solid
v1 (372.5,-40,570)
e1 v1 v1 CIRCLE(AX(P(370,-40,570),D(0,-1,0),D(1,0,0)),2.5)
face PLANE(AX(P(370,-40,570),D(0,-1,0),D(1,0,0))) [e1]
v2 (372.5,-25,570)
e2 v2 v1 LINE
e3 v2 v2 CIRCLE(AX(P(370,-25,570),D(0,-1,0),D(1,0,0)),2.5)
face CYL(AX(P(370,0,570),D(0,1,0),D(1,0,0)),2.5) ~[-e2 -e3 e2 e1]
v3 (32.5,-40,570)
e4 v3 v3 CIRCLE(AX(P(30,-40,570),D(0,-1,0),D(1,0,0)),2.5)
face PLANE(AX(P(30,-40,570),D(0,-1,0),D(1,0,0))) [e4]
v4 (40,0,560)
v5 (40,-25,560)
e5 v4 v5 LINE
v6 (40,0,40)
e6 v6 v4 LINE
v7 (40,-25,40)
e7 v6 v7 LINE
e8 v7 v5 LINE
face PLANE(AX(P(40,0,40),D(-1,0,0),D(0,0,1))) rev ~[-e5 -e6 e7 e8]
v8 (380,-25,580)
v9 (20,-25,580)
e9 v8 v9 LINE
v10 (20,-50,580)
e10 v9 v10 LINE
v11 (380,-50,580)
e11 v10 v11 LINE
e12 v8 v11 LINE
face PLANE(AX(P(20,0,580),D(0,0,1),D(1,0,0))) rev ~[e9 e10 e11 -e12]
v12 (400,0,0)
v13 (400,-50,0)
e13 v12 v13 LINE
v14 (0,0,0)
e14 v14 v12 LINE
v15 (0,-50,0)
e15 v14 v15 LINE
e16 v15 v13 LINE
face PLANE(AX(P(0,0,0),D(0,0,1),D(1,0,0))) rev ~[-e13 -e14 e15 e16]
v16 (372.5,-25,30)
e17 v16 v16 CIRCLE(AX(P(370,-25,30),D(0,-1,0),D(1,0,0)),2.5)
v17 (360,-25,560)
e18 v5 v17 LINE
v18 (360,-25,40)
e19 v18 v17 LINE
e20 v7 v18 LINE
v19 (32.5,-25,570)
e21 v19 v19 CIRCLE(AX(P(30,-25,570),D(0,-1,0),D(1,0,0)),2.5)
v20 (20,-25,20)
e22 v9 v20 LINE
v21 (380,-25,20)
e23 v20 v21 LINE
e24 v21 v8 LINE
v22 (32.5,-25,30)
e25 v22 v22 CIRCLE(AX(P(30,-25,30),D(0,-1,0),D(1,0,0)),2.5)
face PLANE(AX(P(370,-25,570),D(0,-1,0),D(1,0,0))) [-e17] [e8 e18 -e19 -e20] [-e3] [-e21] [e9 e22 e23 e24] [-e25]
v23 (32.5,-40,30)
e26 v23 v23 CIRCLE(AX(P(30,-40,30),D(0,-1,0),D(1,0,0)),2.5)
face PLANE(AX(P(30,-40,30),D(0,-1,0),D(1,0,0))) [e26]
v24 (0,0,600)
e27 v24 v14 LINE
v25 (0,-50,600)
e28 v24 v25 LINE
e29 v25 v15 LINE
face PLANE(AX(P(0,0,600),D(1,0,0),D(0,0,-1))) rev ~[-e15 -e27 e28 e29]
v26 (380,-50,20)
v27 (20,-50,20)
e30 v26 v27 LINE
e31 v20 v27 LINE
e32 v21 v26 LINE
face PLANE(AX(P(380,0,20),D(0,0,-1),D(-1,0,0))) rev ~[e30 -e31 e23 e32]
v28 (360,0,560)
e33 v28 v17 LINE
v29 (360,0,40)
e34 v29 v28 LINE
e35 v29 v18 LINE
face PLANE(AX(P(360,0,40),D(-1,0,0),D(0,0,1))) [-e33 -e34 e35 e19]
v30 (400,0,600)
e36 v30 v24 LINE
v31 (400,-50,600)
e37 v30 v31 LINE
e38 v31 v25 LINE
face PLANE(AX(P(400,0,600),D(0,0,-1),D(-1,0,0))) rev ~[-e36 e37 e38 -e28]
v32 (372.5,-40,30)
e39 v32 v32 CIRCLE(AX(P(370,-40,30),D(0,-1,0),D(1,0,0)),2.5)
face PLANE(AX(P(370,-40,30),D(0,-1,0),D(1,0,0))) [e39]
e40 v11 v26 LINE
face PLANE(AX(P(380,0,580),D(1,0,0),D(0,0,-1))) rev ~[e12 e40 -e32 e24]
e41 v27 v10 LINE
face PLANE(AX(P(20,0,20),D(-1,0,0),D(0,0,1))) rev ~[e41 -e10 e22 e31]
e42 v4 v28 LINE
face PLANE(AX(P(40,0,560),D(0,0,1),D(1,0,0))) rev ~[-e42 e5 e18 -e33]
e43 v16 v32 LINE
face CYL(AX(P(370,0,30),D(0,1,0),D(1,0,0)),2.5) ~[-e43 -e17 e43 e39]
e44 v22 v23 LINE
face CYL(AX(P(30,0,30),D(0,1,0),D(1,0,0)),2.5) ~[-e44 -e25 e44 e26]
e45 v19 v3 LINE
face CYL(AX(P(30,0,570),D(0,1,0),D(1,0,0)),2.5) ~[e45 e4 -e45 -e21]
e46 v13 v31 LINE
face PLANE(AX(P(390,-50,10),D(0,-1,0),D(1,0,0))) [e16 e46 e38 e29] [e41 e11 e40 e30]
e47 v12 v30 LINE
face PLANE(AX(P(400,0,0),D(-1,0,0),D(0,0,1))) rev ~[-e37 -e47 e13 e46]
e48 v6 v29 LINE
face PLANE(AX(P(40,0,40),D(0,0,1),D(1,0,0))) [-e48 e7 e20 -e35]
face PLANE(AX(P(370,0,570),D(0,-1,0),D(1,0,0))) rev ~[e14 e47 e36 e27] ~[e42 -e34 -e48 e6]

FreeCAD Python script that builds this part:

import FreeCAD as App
import Part
import Sketcher
from FreeCAD import Vector
Q = App.Units.Quantity

doc = App.newDocument("Part")
body = doc.addObject("PartDesign::Body", "Body")

sketch1 = doc.addObject("Sketcher::SketchObject", "Sketch")
body.addObject(sketch1)
sketch1.AttachmentSupport = (doc.XZ_Plane, [""])
sketch1.MapMode = "FlatFace"
sketch1.addGeometry(Part.LineSegment(Vector(400, 0, 0), Vector(400, 600, 0)), False)
sketch1.addGeometry(Part.LineSegment(Vector(400, 600, 0), Vector(0, 600, 0)), False)
sketch1.addGeometry(Part.LineSegment(Vector(0, 600, 0), Vector(0, 0, 0)), False)
sketch1.addGeometry(Part.LineSegment(Vector(0, 0, 0), Vector(400, 0, 0)), False)
sketch1.addGeometry(Part.LineSegment(Vector(20, 580, 0), Vector(380, 580, 0)), False)
sketch1.addGeometry(Part.LineSegment(Vector(380, 580, 0), Vector(380, 20, 0)), False)
sketch1.addGeometry(Part.LineSegment(Vector(380, 20, 0), Vector(20, 20, 0)), False)
sketch1.addGeometry(Part.LineSegment(Vector(20, 20, 0), Vector(20, 580, 0)), False)
sketch1.addConstraint(Sketcher.Constraint("Coincident", 0, 2, 1, 1))
sketch1.addConstraint(Sketcher.Constraint("Coincident", 1, 2, 2, 1))
sketch1.addConstraint(Sketcher.Constraint("Coincident", 2, 2, 3, 1))
sketch1.addConstraint(Sketcher.Constraint("Coincident", 3, 2, 0, 1))
sketch1.addConstraint(Sketcher.Constraint("Coincident", 4, 2, 5, 1))
sketch1.addConstraint(Sketcher.Constraint("Coincident", 5, 2, 6, 1))
sketch1.addConstraint(Sketcher.Constraint("Coincident", 6, 2, 7, 1))
sketch1.addConstraint(Sketcher.Constraint("Coincident", 7, 2, 4, 1))
sketch1.addConstraint(Sketcher.Constraint("Vertical", 0))
sketch1.addConstraint(Sketcher.Constraint("Horizontal", 1))
sketch1.addConstraint(Sketcher.Constraint("Vertical", 2))
sketch1.addConstraint(Sketcher.Constraint("Horizontal", 3))
sketch1.addConstraint(Sketcher.Constraint("Horizontal", 4))
sketch1.addConstraint(Sketcher.Constraint("Vertical", 5))
sketch1.addConstraint(Sketcher.Constraint("Horizontal", 6))
sketch1.addConstraint(Sketcher.Constraint("Vertical", 7))
sketch1.addConstraint(Sketcher.Constraint("Coincident", 2, 2, -1, 1))
sketch1.addConstraint(Sketcher.Constraint("DistanceX", 1, 2, 1, 1, Q("400 mm")))
sketch1.addConstraint(Sketcher.Constraint("DistanceX", 4, 1, 4, 2, Q("360 mm")))
sketch1.addConstraint(Sketcher.Constraint("DistanceY", 0, 1, 0, 2, Q("600 mm")))
sketch1.addConstraint(Sketcher.Constraint("DistanceY", 5, 2, 5, 1, Q("560 mm")))
sketch1.addConstraint(Sketcher.Constraint("DistanceX", -1, 1, 4, 2, Q("380 mm")))
sketch1.addConstraint(Sketcher.Constraint("DistanceY", -1, 1, 4, 2, Q("580 mm")))
pad1 = doc.addObject("PartDesign::Pad", "Pad")
body.addObject(pad1)
pad1.Profile = sketch1
pad1.Length = 50

sketch2 = doc.addObject("Sketcher::SketchObject", "Sketch001")
body.addObject(sketch2)
sketch2.AttachmentSupport = (doc.XZ_Plane, [""])
sketch2.MapMode = "FlatFace"
sketch2.addGeometry(Part.LineSegment(Vector(20, 20, 0), Vector(380, 20, 0)), False)
sketch2.addGeometry(Part.LineSegment(Vector(380, 20, 0), Vector(380, 580, 0)), False)
sketch2.addGeometry(Part.LineSegment(Vector(380, 580, 0), Vector(20, 580, 0)), False)
sketch2.addGeometry(Part.LineSegment(Vector(20, 580, 0), Vector(20, 20, 0)), False)
sketch2.addGeometry(Part.Circle(Vector(30, 30, 0), Vector(0, 0, 1), 2.5), False)
sketch2.addGeometry(Part.Circle(Vector(370, 30, 0), Vector(0, 0, 1), 2.5), False)
sketch2.addGeometry(Part.Circle(Vector(30, 570, 0), Vector(0, 0, 1), 2.5), False)
sketch2.addGeometry(Part.LineSegment(Vector(360, 40, 0), Vector(40, 40, 0)), False)
sketch2.addGeometry(Part.LineSegment(Vector(40, 40, 0), Vector(40, 560, 0)), False)
sketch2.addGeometry(Part.LineSegment(Vector(40, 560, 0), Vector(360, 560, 0)), False)
sketch2.addGeometry(Part.LineSegment(Vector(360, 560, 0), Vector(360, 40, 0)), False)
sketch2.addGeometry(Part.Circle(Vector(370, 570, 0), Vector(0, 0, 1), 2.5), False)
sketch2.addConstraint(Sketcher.Constraint("Coincident", 0, 2, 1, 1))
sketch2.addConstraint(Sketcher.Constraint("Coincident", 1, 2, 2, 1))
sketch2.addConstraint(Sketcher.Constraint("Coincident", 2, 2, 3, 1))
sketch2.addConstraint(Sketcher.Constraint("Coincident", 3, 2, 0, 1))
sketch2.addConstraint(Sketcher.Constraint("Coincident", 7, 2, 8, 1))
sketch2.addConstraint(Sketcher.Constraint("Coincident", 8, 2, 9, 1))
sketch2.addConstraint(Sketcher.Constraint("Coincident", 9, 2, 10, 1))
sketch2.addConstraint(Sketcher.Constraint("Coincident", 10, 2, 7, 1))
sketch2.addConstraint(Sketcher.Constraint("Horizontal", 0))
sketch2.addConstraint(Sketcher.Constraint("Vertical", 1))
sketch2.addConstraint(Sketcher.Constraint("Horizontal", 2))
sketch2.addConstraint(Sketcher.Constraint("Vertical", 3))
sketch2.addConstraint(Sketcher.Constraint("Horizontal", 7))
sketch2.addConstraint(Sketcher.Constraint("Vertical", 8))
sketch2.addConstraint(Sketcher.Constraint("Horizontal", 9))
sketch2.addConstraint(Sketcher.Constraint("Vertical", 10))
sketch2.addConstraint(Sketcher.Constraint("Equal", 4, 5))
sketch2.addConstraint(Sketcher.Constraint("Equal", 5, 6))
sketch2.addConstraint(Sketcher.Constraint("Equal", 6, 11))
sketch2.addConstraint(Sketcher.Constraint("Horizontal", 4, 3, 5, 3))
sketch2.addConstraint(Sketcher.Constraint("Horizontal", 6, 3, 11, 3))
sketch2.addConstraint(Sketcher.Constraint("Vertical", 4, 3, 6, 3))
sketch2.addConstraint(Sketcher.Constraint("Vertical", 5, 3, 11, 3))
sketch2.addConstraint(Sketcher.Constraint("Diameter", 4, Q("5 mm")))
sketch2.addConstraint(Sketcher.Constraint("DistanceX", 0, 1, 0, 2, Q("360 mm")))
sketch2.addConstraint(Sketcher.Constraint("DistanceX", 7, 2, 7, 1, Q("320 mm")))
sketch2.addConstraint(Sketcher.Constraint("DistanceY", 1, 1, 1, 2, Q("560 mm")))
sketch2.addConstraint(Sketcher.Constraint("DistanceY", 8, 1, 8, 2, Q("520 mm")))
sketch2.addConstraint(Sketcher.Constraint("DistanceX", -1, 1, 4, 3, Q("30 mm")))
sketch2.addConstraint(Sketcher.Constraint("DistanceY", -1, 1, 4, 3, Q("30 mm")))
sketch2.addConstraint(Sketcher.Constraint("DistanceX", -1, 1, 5, 3, Q("370 mm")))
sketch2.addConstraint(Sketcher.Constraint("DistanceY", -1, 1, 6, 3, Q("570 mm")))
sketch2.addConstraint(Sketcher.Constraint("DistanceX", -1, 1, 0, 2, Q("380 mm")))
sketch2.addConstraint(Sketcher.Constraint("DistanceY", -1, 1, 0, 2, Q("20 mm")))
sketch2.addConstraint(Sketcher.Constraint("DistanceX", -1, 1, 7, 2, Q("40 mm")))
sketch2.addConstraint(Sketcher.Constraint("DistanceY", -1, 1, 7, 2, Q("40 mm")))
pad2 = doc.addObject("PartDesign::Pad", "Pad001")
body.addObject(pad2)
pad2.Profile = sketch2
pad2.Length = 25

sketch3 = doc.addObject("Sketcher::SketchObject", "Sketch002")
body.addObject(sketch3)
sketch3.AttachmentSupport = (doc.XZ_Plane, [""])
sketch3.MapMode = "FlatFace"
sketch3.addGeometry(Part.Circle(Vector(370, 30, 0), Vector(0, 0, 1), 2.5), False)
sketch3.addGeometry(Part.Circle(Vector(30, 30, 0), Vector(0, 0, 1), 2.5), False)
sketch3.addGeometry(Part.Circle(Vector(30, 570, 0), Vector(0, 0, 1), 2.5), False)
sketch3.addGeometry(Part.Circle(Vector(370, 570, 0), Vector(0, 0, 1), 2.5), False)
sketch3.addConstraint(Sketcher.Constraint("Equal", 0, 1))
sketch3.addConstraint(Sketcher.Constraint("Equal", 1, 2))
sketch3.addConstraint(Sketcher.Constraint("Equal", 2, 3))
sketch3.addConstraint(Sketcher.Constraint("Horizontal", 0, 3, 1, 3))
sketch3.addConstraint(Sketcher.Constraint("Horizontal", 2, 3, 3, 3))
sketch3.addConstraint(Sketcher.Constraint("Vertical", 1, 3, 2, 3))
sketch3.addConstraint(Sketcher.Constraint("Vertical", 0, 3, 3, 3))
sketch3.addConstraint(Sketcher.Constraint("Diameter", 0, Q("5 mm")))
sketch3.addConstraint(Sketcher.Constraint("DistanceX", -1, 1, 0, 3, Q("370 mm")))
sketch3.addConstraint(Sketcher.Constraint("DistanceY", -1, 1, 0, 3, Q("30 mm")))
sketch3.addConstraint(Sketcher.Constraint("DistanceX", -1, 1, 1, 3, Q("30 mm")))
sketch3.addConstraint(Sketcher.Constraint("DistanceY", -1, 1, 2, 3, Q("570 mm")))
pad3 = doc.addObject("PartDesign::Pad", "Pad002")
body.addObject(pad3)
pad3.Profile = sketch3
pad3.Length = 40

doc.recompute()
